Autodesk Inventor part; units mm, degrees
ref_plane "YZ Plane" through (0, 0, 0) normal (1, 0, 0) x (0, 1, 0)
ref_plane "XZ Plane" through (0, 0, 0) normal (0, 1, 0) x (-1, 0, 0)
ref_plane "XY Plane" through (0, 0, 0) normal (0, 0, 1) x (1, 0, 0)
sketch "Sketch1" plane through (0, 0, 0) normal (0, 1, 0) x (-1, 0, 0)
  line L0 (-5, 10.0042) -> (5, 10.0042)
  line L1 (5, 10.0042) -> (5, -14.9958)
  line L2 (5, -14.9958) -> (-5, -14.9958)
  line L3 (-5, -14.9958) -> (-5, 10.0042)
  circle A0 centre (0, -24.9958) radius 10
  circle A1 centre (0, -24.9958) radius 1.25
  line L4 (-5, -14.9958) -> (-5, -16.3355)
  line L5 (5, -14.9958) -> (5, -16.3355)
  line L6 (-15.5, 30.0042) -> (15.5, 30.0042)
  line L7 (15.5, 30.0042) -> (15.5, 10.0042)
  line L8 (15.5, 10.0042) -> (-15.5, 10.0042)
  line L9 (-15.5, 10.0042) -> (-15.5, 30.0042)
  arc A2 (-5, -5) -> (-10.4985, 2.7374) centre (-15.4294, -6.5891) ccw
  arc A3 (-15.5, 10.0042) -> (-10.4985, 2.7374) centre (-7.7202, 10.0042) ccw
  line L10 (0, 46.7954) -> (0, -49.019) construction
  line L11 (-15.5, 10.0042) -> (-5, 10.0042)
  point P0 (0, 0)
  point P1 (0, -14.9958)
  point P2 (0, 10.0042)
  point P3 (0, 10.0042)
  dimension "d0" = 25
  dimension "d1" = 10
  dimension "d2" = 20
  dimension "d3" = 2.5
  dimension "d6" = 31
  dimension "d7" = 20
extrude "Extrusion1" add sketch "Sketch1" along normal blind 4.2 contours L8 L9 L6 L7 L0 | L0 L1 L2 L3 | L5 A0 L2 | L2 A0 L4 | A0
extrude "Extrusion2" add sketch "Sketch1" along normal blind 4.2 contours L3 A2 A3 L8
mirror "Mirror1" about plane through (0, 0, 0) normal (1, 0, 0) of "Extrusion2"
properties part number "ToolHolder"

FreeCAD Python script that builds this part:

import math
import FreeCAD as App
import Part
import Sketcher

doc = App.newDocument("Part")
body = doc.addObject("PartDesign::Body", "Body")

# Sketch on XZ plane
sketch1 = body.newObject("Sketcher::SketchObject", "Sketch")
sketch1.AttachmentSupport = (doc.getObject("XZ_Plane"), [""])
sketch1.MapMode = "FlatFace"
sketch1.addGeometry([
    Part.LineSegment(App.Vector(15.5, 10.0042, 0), App.Vector(5, 10.0042, 0)),  # 0
    Part.LineSegment(App.Vector(5, 10.0042, 0), App.Vector(5, -16.3355, 0)),  # 1
    Part.ArcOfCircle(Part.Circle(App.Vector(0, -24.9958, 0), App.Vector(0, 0, 1), 10), math.radians(119.999868), math.radians(420.000132)),  # 2
    Part.LineSegment(App.Vector(-5, -16.3355, 0), App.Vector(-5, 10.0042, 0)),  # 3
    Part.LineSegment(App.Vector(-5, 10.0042, 0), App.Vector(-15.5, 10.0042, 0)),  # 4
    Part.LineSegment(App.Vector(-15.5, 10.0042, 0), App.Vector(-15.5, 30.0042, 0)),  # 5
    Part.LineSegment(App.Vector(-15.5, 30.0042, 0), App.Vector(15.5, 30.0042, 0)),  # 6
    Part.LineSegment(App.Vector(15.5, 30.0042, 0), App.Vector(15.5, 10.0042, 0)),  # 7
    Part.Circle(App.Vector(0, -24.9958, 0), App.Vector(0, 0, 1), 1.25),  # 8
], False)
sketch1.addConstraint([
    Sketcher.Constraint("Coincident", 0, 2, 1, 1),
    Sketcher.Constraint("Coincident", 1, 2, 2, 2),
    Sketcher.Constraint("Coincident", 2, 1, 3, 1),
    Sketcher.Constraint("Coincident", 3, 2, 4, 1),
    Sketcher.Constraint("Coincident", 4, 2, 5, 1),
    Sketcher.Constraint("Coincident", 5, 2, 6, 1),
    Sketcher.Constraint("Coincident", 6, 2, 7, 1),
    Sketcher.Constraint("Coincident", 7, 2, 0, 1),
    Sketcher.Constraint("Horizontal", 0),
    Sketcher.Constraint("Vertical", 1),
    Sketcher.Constraint("Vertical", 3),
    Sketcher.Constraint("Horizontal", 4),
    Sketcher.Constraint("Vertical", 5),
    Sketcher.Constraint("Horizontal", 6),
    Sketcher.Constraint("Vertical", 7),
    Sketcher.Constraint("Coincident", 8, 3, 2, 3),
    Sketcher.Constraint("Symmetric", 1, 2, 2, 1, -2),
    Sketcher.Constraint("Symmetric", 4, 2, 7, 2, -2),
    Sketcher.Constraint("Radius", 2, 10.0),
    Sketcher.Constraint("Diameter", 8, 2.5),
    Sketcher.Constraint("DistanceX", 6, 1, 6, 2, 31.0),
    Sketcher.Constraint("DistanceY", 5, 1, 5, 2, 20.0),
    Sketcher.Constraint("DistanceX", 2, 1, 1, 2, 10.0),
    Sketcher.Constraint("DistanceY", 2, 3, 0, 2, 35.0),
    Sketcher.Constraint("DistanceY", 2, 3, -1, 1, 24.9958),
])
pad1 = body.newObject("PartDesign::Pad", "Pad")
pad1.Profile = sketch1
pad1.Length = 4.2
pad1.Reversed = True

# Sketch on XZ plane
sketch2 = body.newObject("Sketcher::SketchObject", "Sketch001")
sketch2.AttachmentSupport = (doc.getObject("XZ_Plane"), [""])
sketch2.MapMode = "FlatFace"
sketch2.addGeometry([
    Part.LineSegment(App.Vector(5, -5, 0), App.Vector(5, 10.0042, 0)),
    Part.LineSegment(App.Vector(5, 10.0042, 0), App.Vector(15.5, 10.0042, 0)),
    Part.ArcOfCircle(Part.Circle(App.Vector(7.7202, 10.0042, 0), App.Vector(0, 0, 1), 7.7798), math.radians(-69.076753), math.radians(0)),
    Part.ArcOfCircle(Part.Circle(App.Vector(15.4294, -6.5891, 0), App.Vector(0, 0, 1), 10.549769), math.radians(117.86531), math.radians(171.336626)),
], False)
sketch2.addConstraint([
    Sketcher.Constraint("Coincident", 0, 2, 1, 1),
    Sketcher.Constraint("Coincident", 1, 2, 2, 2),
    Sketcher.Constraint("Coincident", 2, 1, 3, 1),
    Sketcher.Constraint("Coincident", 3, 2, 0, 1),
    Sketcher.Constraint("Vertical", 0),
    Sketcher.Constraint("Horizontal", 1),
    Sketcher.Constraint("Horizontal", 2, 3, 0, 2),
    Sketcher.Constraint("DistanceX", 1, 1, 1, 2, 10.5),
    Sketcher.Constraint("DistanceX", -1, 1, 0, 2, 5.0),
    Sketcher.Constraint("DistanceY", 3, 2, -1, 1, 5.0),
    Sketcher.Constraint("Radius", 2, 7.7798),
    Sketcher.Constraint("Radius", 3, 10.5498),
    Sketcher.Constraint("DistanceY", 0, 1, 0, 2, 15.0042),
    Sketcher.Constraint("DistanceY", 3, 3, -1, 1, 6.589),
])
pad2 = body.newObject("PartDesign::Pad", "Pad001")
pad2.Profile = sketch2
pad2.Length = 4.2
pad2.Reversed = True
doc.recompute()

mirrored = body.newObject("PartDesign::Mirrored", "Mirrored")
mirrored.Originals = [pad2]
mirrored.MirrorPlane = (doc.getObject("YZ_Plane"), [""])
body.Tip = mirrored

doc.recompute()
